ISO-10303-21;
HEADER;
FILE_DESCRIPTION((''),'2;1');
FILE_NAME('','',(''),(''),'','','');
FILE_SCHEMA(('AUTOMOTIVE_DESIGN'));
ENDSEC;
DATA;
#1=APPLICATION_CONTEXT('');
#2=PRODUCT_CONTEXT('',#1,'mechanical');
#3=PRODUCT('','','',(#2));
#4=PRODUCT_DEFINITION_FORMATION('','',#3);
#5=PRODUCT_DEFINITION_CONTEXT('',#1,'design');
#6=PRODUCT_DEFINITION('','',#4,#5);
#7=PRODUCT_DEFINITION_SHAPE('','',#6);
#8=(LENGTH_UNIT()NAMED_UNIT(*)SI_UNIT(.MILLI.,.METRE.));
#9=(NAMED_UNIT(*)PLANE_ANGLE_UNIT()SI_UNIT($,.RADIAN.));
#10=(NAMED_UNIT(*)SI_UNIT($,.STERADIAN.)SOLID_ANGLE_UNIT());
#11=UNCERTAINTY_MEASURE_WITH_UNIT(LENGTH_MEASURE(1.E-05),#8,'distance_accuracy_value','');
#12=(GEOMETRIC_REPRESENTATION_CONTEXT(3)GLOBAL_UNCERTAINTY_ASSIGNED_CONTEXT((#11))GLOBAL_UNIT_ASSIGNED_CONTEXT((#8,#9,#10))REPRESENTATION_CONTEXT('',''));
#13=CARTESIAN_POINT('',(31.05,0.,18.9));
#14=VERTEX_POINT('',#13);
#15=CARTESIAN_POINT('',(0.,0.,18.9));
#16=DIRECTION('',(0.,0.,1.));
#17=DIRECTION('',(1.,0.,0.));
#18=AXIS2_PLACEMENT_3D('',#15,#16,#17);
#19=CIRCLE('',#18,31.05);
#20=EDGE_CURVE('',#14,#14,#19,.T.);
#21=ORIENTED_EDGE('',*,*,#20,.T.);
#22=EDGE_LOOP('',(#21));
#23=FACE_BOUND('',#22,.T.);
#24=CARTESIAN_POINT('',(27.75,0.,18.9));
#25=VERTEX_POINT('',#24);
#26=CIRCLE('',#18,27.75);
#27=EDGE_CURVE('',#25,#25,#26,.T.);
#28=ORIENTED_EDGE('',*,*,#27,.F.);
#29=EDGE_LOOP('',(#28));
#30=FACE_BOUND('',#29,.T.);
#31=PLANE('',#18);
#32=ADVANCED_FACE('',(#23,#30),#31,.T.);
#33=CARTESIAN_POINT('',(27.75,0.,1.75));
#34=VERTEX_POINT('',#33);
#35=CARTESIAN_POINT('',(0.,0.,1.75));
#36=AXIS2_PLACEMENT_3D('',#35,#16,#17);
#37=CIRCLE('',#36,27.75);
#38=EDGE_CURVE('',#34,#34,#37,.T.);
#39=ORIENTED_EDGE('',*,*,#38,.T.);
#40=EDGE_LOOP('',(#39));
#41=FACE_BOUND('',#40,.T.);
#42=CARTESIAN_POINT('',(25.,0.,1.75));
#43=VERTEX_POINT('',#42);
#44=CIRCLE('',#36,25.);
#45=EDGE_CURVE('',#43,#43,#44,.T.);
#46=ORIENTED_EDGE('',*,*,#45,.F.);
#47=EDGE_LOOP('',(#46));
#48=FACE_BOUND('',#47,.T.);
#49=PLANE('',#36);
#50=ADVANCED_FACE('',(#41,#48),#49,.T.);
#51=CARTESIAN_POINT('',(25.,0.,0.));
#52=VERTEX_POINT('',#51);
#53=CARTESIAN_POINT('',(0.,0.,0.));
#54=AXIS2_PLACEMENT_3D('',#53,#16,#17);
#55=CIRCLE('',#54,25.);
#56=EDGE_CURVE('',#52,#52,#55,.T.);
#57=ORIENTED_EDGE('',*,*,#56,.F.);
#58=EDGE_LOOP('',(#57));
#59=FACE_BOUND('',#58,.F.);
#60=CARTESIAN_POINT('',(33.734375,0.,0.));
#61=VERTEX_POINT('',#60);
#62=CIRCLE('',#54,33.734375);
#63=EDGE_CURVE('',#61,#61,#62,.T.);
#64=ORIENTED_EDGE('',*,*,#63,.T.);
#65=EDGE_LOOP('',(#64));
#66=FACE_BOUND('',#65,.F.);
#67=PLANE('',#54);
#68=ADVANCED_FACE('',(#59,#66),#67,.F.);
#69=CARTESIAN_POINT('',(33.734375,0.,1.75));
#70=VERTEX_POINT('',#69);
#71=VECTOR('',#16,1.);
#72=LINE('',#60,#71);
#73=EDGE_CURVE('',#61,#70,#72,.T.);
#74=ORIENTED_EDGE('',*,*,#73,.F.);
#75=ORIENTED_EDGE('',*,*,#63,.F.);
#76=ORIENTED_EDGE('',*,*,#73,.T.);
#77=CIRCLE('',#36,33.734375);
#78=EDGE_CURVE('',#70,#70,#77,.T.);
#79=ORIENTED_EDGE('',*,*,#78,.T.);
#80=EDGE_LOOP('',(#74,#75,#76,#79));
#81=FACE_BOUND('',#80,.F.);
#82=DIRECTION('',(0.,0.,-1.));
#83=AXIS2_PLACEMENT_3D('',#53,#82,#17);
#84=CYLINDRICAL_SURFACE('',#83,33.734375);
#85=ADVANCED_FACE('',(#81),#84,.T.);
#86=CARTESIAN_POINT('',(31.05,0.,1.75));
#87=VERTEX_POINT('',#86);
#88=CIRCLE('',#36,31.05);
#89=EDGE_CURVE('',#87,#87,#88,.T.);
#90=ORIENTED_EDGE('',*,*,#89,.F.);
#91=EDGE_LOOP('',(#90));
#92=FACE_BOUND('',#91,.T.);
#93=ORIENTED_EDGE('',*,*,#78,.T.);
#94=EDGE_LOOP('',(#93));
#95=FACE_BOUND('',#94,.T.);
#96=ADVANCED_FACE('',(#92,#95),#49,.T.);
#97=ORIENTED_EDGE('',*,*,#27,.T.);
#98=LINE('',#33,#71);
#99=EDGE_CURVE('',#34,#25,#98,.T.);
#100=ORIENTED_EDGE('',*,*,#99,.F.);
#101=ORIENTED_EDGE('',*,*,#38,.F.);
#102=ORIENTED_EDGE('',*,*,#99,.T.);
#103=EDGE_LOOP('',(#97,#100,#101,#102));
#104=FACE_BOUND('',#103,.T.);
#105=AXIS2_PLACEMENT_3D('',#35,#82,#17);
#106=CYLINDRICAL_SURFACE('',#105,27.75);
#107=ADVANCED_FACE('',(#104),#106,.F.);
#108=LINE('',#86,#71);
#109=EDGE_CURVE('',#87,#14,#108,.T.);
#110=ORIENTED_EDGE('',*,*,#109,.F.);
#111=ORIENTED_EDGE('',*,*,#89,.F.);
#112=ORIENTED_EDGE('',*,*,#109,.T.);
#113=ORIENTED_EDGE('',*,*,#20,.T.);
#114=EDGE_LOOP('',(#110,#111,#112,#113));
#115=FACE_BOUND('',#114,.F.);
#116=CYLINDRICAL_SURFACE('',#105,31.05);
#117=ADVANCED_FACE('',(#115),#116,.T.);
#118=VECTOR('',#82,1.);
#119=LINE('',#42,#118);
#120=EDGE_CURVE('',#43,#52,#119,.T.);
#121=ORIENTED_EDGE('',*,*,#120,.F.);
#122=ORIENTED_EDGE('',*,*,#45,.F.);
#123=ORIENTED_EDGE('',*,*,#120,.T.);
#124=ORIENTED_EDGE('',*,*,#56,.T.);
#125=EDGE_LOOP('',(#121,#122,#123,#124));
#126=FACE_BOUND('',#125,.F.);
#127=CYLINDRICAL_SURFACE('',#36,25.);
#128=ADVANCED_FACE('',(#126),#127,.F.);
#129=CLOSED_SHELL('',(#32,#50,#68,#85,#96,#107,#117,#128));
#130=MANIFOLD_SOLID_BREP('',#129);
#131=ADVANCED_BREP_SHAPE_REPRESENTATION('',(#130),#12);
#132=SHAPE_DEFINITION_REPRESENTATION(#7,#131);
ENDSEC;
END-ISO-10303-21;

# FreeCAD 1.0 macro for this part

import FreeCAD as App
import Part
import Sketcher

V = App.Vector

doc = App.newDocument("Part")
body = doc.addObject("PartDesign::Body", "Body")

sketch1 = doc.addObject("Sketcher::SketchObject", "Sketch")
body.addObject(sketch1)
sketch1.AttachmentSupport = (doc.XY_Plane, [""])
sketch1.MapMode = "FlatFace"
sketch1.addGeometry(Part.Circle(V(0, 0, 0), V(0, 0, 1), 34), False)
sketch1.addConstraint(Sketcher.Constraint("Coincident", 0, 3, -1, 1))
sketch1.addConstraint(Sketcher.Constraint("Diameter", 0, 67.46875))
pad1 = doc.addObject("PartDesign::Pad", "Pad")
body.addObject(pad1)
pad1.Profile = sketch1
pad1.Length = 1.75

sketch2 = doc.addObject("Sketcher::SketchObject", "Sketch001")
body.addObject(sketch2)
sketch2.AttachmentSupport = (doc.XY_Plane, [""])
sketch2.MapMode = "FlatFace"
sketch2.AttachmentOffset = App.Placement(V(0, 0, 1.75), App.Rotation())
sketch2.addGeometry(Part.Circle(V(0, 0, 0), V(0, 0, 1), 31), False)
sketch2.addGeometry(Part.Circle(V(0, 0, 0), V(0, 0, 1), 28), False)
sketch2.addConstraint(Sketcher.Constraint("Coincident", 0, 3, -1, 1))
sketch2.addConstraint(Sketcher.Constraint("Coincident", 1, 3, -1, 1))
sketch2.addConstraint(Sketcher.Constraint("Diameter", 0, 62.1))
sketch2.addConstraint(Sketcher.Constraint("Diameter", 1, 55.5))
pad2 = doc.addObject("PartDesign::Pad", "Pad001")
body.addObject(pad2)
pad2.Profile = sketch2
pad2.Length = 17.15

sketch3 = doc.addObject("Sketcher::SketchObject", "Sketch002")
body.addObject(sketch3)
sketch3.AttachmentSupport = (doc.XY_Plane, [""])
sketch3.MapMode = "FlatFace"
sketch3.AttachmentOffset = App.Placement(V(0, 0, 1.75), App.Rotation())
sketch3.addGeometry(Part.Circle(V(0, 0, 0), V(0, 0, 1), 25), False)
sketch3.addConstraint(Sketcher.Constraint("Coincident", 0, 3, -1, 1))
sketch3.addConstraint(Sketcher.Constraint("Diameter", 0, 50.0))
pocket1 = doc.addObject("PartDesign::Pocket", "Pocket")
body.addObject(pocket1)
pocket1.Profile = sketch3
pocket1.Type = "ThroughAll"

doc.recompute()
